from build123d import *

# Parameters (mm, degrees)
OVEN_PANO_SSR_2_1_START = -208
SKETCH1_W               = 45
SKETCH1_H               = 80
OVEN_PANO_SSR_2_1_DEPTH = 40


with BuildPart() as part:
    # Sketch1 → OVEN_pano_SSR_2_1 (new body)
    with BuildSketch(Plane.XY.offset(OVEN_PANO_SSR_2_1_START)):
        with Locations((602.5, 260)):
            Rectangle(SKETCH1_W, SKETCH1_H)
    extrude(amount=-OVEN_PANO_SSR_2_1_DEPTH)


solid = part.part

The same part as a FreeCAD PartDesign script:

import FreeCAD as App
import Part
import Sketcher
Q = App.Units.Quantity


def add_polygon(sketch, points):
    """Adds a closed chain of lines whose ends are joined by coincident constraints."""
    first, n = sketch.GeometryCount, len(points)
    for a, b in zip(points, points[1:] + points[:1]):
        sketch.addGeometry(Part.LineSegment(App.Vector(*a, 0), App.Vector(*b, 0)), False)
    for i in range(n):
        sketch.addConstraint(Sketcher.Constraint("Coincident", first + i, 2, first + (i + 1) % n, 1))

doc = App.newDocument("Part")
body = doc.addObject("PartDesign::Body", "Body")

# Sketch on XY plane
sketch1 = body.newObject("Sketcher::SketchObject", "Sketch")
sketch1.AttachmentSupport = (doc.getObject("XY_Plane"), [""])
sketch1.MapMode = "FlatFace"
sketch1.AttachmentOffset = App.Placement(App.Vector(0, 0, -208), App.Rotation())
add_polygon(sketch1, [(580, 300), (580, 220), (625, 220), (625, 300)])  # lines 0-3
sketch1.addConstraint(Sketcher.Constraint("Vertical", 0))
sketch1.addConstraint(Sketcher.Constraint("Horizontal", 1))
sketch1.addConstraint(Sketcher.Constraint("Vertical", 2))
sketch1.addConstraint(Sketcher.Constraint("Horizontal", 3))
sketch1.addConstraint(Sketcher.Constraint("DistanceX", 1, 1, 1, 2, Q("45 mm")))
sketch1.addConstraint(Sketcher.Constraint("DistanceY", 0, 2, 0, 1, Q("80 mm")))
sketch1.addConstraint(Sketcher.Constraint("DistanceX", -1, 1, 0, 2, Q("580 mm")))
sketch1.addConstraint(Sketcher.Constraint("DistanceY", -1, 1, 0, 2, Q("220 mm")))
pad1 = body.newObject("PartDesign::Pad", "Pad")
pad1.Profile = sketch1
pad1.Length = 40
pad1.Reversed = True

doc.recompute()
